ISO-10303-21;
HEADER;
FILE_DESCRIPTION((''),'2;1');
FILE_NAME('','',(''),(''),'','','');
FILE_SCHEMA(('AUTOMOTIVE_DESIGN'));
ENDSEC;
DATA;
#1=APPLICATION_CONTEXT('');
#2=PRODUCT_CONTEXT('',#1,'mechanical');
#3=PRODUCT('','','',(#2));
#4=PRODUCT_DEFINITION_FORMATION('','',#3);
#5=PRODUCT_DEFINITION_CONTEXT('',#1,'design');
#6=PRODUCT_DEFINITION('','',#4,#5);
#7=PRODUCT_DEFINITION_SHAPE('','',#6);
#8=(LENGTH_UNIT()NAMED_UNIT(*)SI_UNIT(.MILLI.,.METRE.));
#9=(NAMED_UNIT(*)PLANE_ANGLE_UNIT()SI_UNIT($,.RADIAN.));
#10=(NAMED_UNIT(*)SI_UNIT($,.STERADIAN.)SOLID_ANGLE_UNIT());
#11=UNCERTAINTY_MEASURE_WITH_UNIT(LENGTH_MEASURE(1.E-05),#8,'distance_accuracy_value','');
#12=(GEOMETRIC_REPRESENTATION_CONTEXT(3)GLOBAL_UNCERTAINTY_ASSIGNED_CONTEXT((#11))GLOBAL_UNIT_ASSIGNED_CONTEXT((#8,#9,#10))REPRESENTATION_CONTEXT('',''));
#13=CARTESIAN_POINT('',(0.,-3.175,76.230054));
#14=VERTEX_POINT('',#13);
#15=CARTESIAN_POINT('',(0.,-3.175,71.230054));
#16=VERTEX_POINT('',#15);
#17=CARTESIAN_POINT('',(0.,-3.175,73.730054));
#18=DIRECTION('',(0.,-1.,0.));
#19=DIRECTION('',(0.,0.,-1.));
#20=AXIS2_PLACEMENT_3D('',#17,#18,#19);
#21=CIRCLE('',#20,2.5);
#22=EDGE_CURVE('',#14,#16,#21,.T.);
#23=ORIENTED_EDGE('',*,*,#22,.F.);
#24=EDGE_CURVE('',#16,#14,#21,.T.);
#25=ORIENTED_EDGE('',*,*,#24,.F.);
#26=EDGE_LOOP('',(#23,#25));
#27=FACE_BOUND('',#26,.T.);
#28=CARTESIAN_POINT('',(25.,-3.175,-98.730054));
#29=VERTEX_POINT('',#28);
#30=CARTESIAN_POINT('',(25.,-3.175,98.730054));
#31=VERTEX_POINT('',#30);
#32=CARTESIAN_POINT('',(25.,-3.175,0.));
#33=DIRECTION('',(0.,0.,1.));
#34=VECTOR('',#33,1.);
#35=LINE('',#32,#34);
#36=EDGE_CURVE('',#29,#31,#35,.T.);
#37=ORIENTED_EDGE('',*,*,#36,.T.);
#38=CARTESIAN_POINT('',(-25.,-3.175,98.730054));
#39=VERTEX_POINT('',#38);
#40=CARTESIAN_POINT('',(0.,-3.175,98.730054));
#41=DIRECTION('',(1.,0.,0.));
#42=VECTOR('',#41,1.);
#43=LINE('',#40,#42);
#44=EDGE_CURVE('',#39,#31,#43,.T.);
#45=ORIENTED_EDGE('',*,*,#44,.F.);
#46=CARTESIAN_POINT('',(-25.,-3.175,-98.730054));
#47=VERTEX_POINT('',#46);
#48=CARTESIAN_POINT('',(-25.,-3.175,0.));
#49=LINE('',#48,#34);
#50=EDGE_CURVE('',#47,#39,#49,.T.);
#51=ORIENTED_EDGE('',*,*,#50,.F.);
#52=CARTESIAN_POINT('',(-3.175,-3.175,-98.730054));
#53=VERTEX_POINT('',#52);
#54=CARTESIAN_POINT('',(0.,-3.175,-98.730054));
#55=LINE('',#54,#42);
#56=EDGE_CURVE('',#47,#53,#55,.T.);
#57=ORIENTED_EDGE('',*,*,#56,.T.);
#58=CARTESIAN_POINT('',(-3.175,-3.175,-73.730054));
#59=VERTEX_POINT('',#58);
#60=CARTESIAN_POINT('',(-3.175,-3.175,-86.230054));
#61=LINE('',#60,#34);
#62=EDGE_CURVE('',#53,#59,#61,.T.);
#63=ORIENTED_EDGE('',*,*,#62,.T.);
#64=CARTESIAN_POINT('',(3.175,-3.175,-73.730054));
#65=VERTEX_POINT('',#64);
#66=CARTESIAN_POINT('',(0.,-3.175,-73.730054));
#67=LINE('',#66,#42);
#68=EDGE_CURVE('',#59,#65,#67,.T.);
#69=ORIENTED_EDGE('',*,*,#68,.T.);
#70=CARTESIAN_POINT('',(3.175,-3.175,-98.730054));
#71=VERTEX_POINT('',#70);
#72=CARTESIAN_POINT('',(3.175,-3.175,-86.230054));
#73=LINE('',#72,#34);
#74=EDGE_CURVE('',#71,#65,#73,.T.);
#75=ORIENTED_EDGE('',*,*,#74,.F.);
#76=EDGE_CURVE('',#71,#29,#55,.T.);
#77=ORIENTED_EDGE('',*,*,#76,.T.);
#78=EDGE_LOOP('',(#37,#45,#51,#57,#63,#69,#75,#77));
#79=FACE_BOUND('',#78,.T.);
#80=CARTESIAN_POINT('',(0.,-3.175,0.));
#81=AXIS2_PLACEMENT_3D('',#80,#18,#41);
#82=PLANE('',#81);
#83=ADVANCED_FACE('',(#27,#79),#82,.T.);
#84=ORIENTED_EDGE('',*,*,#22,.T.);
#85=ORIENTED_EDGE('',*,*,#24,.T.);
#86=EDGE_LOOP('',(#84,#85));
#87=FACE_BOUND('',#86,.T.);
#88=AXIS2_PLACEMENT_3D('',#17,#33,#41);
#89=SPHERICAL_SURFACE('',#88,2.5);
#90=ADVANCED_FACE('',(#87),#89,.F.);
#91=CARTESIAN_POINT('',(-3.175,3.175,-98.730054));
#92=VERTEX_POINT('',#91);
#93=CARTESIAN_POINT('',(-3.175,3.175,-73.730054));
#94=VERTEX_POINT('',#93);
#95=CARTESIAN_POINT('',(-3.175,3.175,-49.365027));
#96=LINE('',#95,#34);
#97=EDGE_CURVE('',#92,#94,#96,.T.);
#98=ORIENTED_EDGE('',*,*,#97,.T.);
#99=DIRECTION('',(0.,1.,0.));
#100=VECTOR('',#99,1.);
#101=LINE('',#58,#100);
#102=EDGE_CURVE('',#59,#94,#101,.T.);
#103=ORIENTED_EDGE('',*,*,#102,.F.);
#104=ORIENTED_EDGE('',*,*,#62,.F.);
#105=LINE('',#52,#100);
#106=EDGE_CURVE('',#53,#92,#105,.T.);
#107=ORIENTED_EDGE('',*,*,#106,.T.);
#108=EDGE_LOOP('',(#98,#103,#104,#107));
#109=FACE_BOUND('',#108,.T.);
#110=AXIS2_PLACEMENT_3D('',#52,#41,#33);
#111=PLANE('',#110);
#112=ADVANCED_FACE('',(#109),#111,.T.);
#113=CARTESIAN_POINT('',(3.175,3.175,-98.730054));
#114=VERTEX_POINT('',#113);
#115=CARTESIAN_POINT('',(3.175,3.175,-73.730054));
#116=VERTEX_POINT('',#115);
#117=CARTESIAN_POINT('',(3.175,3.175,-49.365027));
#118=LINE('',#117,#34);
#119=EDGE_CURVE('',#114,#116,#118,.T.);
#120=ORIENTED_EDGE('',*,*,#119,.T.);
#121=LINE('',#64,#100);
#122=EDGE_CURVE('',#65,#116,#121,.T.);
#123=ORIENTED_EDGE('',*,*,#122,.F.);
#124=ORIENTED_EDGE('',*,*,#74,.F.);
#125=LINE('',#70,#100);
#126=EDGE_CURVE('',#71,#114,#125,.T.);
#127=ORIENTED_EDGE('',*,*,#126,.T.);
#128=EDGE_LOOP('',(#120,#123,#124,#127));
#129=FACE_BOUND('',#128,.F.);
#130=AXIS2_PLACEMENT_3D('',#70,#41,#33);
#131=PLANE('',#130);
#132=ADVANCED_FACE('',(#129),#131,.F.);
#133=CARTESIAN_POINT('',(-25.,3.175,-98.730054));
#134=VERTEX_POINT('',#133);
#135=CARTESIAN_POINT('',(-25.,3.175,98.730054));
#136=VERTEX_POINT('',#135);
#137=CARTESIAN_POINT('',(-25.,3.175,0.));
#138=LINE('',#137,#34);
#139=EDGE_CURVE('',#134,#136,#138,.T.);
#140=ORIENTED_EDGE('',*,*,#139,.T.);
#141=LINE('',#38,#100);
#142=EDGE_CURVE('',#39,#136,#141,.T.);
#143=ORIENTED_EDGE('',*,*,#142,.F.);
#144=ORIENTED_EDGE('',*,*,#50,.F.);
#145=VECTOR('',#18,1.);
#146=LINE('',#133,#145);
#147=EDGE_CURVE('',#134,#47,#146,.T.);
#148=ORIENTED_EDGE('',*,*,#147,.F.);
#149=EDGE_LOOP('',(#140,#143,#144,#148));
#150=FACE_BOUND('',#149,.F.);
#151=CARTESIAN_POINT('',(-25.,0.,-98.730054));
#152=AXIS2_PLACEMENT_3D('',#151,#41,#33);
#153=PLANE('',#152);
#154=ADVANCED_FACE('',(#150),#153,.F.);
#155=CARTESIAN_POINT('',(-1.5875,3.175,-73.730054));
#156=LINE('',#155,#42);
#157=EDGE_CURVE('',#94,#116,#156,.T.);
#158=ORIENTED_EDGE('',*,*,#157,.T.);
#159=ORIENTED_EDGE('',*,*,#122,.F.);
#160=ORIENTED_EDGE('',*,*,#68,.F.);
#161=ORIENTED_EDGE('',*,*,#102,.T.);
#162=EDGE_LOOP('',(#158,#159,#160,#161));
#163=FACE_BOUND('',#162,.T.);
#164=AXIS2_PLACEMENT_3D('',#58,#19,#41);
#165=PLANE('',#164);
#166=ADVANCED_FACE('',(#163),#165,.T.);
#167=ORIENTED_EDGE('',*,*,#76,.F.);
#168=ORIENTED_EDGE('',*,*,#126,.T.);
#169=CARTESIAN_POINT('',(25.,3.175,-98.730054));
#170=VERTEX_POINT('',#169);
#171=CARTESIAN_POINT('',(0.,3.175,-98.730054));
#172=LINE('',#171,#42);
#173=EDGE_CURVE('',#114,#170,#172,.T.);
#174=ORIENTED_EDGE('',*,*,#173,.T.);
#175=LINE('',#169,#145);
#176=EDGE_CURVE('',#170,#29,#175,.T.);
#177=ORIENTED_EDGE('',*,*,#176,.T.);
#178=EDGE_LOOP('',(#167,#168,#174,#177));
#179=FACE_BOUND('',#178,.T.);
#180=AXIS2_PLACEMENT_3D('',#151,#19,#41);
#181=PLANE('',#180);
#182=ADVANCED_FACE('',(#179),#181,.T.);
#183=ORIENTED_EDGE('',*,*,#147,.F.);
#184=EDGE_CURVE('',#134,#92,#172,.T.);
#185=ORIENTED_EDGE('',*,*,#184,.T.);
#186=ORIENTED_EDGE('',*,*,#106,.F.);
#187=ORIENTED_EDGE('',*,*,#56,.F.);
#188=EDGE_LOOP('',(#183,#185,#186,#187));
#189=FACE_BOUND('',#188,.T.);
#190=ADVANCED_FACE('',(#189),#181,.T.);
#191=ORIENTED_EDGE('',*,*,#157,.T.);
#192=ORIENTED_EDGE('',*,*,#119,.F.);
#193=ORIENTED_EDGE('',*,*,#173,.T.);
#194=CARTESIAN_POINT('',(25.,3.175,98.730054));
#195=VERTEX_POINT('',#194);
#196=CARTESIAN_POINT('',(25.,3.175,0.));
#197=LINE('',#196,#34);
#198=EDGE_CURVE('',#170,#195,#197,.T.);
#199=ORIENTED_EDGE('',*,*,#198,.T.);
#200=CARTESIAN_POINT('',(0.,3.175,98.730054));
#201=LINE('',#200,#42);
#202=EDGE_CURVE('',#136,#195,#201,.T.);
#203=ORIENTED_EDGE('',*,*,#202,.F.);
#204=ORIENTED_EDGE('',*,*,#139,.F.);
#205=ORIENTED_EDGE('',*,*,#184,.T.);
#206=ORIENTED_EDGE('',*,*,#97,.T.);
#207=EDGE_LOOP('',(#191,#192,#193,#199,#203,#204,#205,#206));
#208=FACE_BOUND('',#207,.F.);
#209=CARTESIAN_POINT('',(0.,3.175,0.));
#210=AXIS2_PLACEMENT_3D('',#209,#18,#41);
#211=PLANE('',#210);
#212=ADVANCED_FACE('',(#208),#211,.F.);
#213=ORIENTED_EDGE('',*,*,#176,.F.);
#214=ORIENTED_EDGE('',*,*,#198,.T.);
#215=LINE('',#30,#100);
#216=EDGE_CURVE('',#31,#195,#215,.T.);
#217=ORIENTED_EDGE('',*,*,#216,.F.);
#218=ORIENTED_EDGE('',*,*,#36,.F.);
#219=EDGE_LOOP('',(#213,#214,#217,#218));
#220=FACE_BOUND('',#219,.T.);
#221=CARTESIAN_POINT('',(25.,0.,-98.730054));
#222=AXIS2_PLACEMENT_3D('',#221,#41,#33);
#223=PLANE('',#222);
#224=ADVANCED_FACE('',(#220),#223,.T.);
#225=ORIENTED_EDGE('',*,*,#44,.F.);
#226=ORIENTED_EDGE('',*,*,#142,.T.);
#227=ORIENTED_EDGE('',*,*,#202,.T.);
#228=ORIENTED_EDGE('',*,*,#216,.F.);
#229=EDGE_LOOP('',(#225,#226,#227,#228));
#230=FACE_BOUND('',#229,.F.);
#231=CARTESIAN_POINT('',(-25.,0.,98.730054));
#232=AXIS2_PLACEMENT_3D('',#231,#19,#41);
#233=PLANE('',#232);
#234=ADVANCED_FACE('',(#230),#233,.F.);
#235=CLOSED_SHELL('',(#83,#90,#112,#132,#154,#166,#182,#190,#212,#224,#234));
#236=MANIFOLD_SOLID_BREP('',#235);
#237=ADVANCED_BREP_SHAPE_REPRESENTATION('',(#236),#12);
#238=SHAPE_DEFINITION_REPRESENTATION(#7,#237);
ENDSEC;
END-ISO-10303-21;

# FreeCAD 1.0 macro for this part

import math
import FreeCAD as App
import Part
import Sketcher

V = App.Vector

doc = App.newDocument("Part")
params = doc.addObject("Spreadsheet::Sheet", "Params")
for row, (alias, value) in enumerate([
    ("sketch1_width", "50 mm"),
    ("pad1_length", "6.35 mm"),
    ("sketch2_radius", "2.5 mm"),
    ("groove_angle", "360 deg"),
    ("sketch3_height", "25 mm"),
    ("sketch3_width", "6.35 mm"),
], start=1):
    params.set(f"A{row}", alias)
    params.set(f"B{row}", "=" + value)
    params.setAlias(f"B{row}", alias)

body = doc.addObject("PartDesign::Body", "Body")

sketch1 = body.newObject("Sketcher::SketchObject", "Sketch")
sketch1.AttachmentSupport = (doc.getObject("XZ_Plane"), [""])
sketch1.MapMode = "FlatFace"
sketch1.addGeometry(Part.LineSegment(V(-25, 99, 0), V(-25, -99, 0)), False)
sketch1.addGeometry(Part.LineSegment(V(-25, -99, 0), V(25, -99, 0)), False)
sketch1.addGeometry(Part.LineSegment(V(25, -99, 0), V(25, 99, 0)), False)
sketch1.addGeometry(Part.LineSegment(V(25, 99, 0), V(-25, 99, 0)), False)
sketch1.addConstraint(Sketcher.Constraint("Coincident", 0, 2, 1, 1))
sketch1.addConstraint(Sketcher.Constraint("Coincident", 1, 2, 2, 1))
sketch1.addConstraint(Sketcher.Constraint("Coincident", 2, 2, 3, 1))
sketch1.addConstraint(Sketcher.Constraint("Coincident", 3, 2, 0, 1))
sketch1.addConstraint(Sketcher.Constraint("Vertical", 0))
sketch1.addConstraint(Sketcher.Constraint("Horizontal", 1))
sketch1.addConstraint(Sketcher.Constraint("Vertical", 2))
sketch1.addConstraint(Sketcher.Constraint("Horizontal", 3))
sketch1.addConstraint(Sketcher.Constraint("Symmetric", 0, 2, 2, 2, -1, 1))
sketch1.addConstraint(Sketcher.Constraint("DistanceX", 1, 1, 1, 2, 50.0))
sketch1.addConstraint(Sketcher.Constraint("DistanceY", 0, 2, 0, 1, 197.460108))
sketch1.setExpression("Constraints[9]", "Params.sketch1_width")
pad1 = body.newObject("PartDesign::Pad", "Pad")
pad1.Profile = sketch1
pad1.setExpression("Length", "Params.pad1_length")
pad1.Midplane = True

sketch2 = body.newObject("Sketcher::SketchObject", "Sketch001")
sketch2.AttachmentSupport = (doc.getObject("XZ_Plane"), [""])
sketch2.MapMode = "FlatFace"
sketch2.AttachmentOffset = App.Placement(V(0, 0, 3.175), App.Rotation())
sketch2.addGeometry(Part.ArcOfCircle(Part.Circle(V(0, 73.7, 0), V(0, 0, 1), 2.5), math.radians(-90), math.radians(90)), False)
sketch2.addGeometry(Part.LineSegment(V(0, 76.2, 0), V(0, 71.2, 0)), False)
sketch2.addConstraint(Sketcher.Constraint("Coincident", 0, 1, 1, 2))
sketch2.addConstraint(Sketcher.Constraint("Coincident", 1, 1, 0, 2))
sketch2.addConstraint(Sketcher.Constraint("Vertical", 1))
sketch2.addConstraint(Sketcher.Constraint("PointOnObject", 0, 3, -2))
sketch2.addConstraint(Sketcher.Constraint("PointOnObject", 0, 1, -2))
sketch2.addConstraint(Sketcher.Constraint("Radius", 0, 2.5))
sketch2.addConstraint(Sketcher.Constraint("DistanceY", -1, 1, 0, 3, 73.730054))
sketch2.setExpression("Constraints[5]", "Params.sketch2_radius")
groove = body.newObject("PartDesign::Groove", "Groove")
groove.Profile = sketch2
groove.ReferenceAxis = (sketch2, ["V_Axis"])
groove.setExpression("Angle", "Params.groove_angle")

sketch3 = body.newObject("Sketcher::SketchObject", "Sketch002")
sketch3.AttachmentSupport = (doc.getObject("XZ_Plane"), [""])
sketch3.MapMode = "FlatFace"
sketch3.AttachmentOffset = App.Placement(V(0, 0, 3.175), App.Rotation())
sketch3.addGeometry(Part.LineSegment(V(-3, -74, 0), V(-3, -99, 0)), False)
sketch3.addGeometry(Part.LineSegment(V(-3, -99, 0), V(3, -99, 0)), False)
sketch3.addGeometry(Part.LineSegment(V(3, -99, 0), V(3, -74, 0)), False)
sketch3.addGeometry(Part.LineSegment(V(3, -74, 0), V(-3, -74, 0)), False)
sketch3.addConstraint(Sketcher.Constraint("Coincident", 0, 2, 1, 1))
sketch3.addConstraint(Sketcher.Constraint("Coincident", 1, 2, 2, 1))
sketch3.addConstraint(Sketcher.Constraint("Coincident", 2, 2, 3, 1))
sketch3.addConstraint(Sketcher.Constraint("Coincident", 3, 2, 0, 1))
sketch3.addConstraint(Sketcher.Constraint("Vertical", 0))
sketch3.addConstraint(Sketcher.Constraint("Horizontal", 1))
sketch3.addConstraint(Sketcher.Constraint("Vertical", 2))
sketch3.addConstraint(Sketcher.Constraint("Horizontal", 3))
sketch3.addConstraint(Sketcher.Constraint("DistanceY", 0, 2, 0, 1, 25.0))
sketch3.addConstraint(Sketcher.Constraint("DistanceX", 1, 1, 1, 2, 6.35))
sketch3.addConstraint(Sketcher.Constraint("DistanceX", 0, 2, -1, 1, 3.175))
sketch3.addConstraint(Sketcher.Constraint("DistanceY", 0, 2, -1, 1, 98.730054))
sketch3.setExpression("Constraints[8]", "Params.sketch3_height")
sketch3.setExpression("Constraints[9]", "Params.sketch3_width")
pocket1 = body.newObject("PartDesign::Pocket", "Pocket")
pocket1.Profile = sketch3
pocket1.Type = "ThroughAll"

doc.recompute()
